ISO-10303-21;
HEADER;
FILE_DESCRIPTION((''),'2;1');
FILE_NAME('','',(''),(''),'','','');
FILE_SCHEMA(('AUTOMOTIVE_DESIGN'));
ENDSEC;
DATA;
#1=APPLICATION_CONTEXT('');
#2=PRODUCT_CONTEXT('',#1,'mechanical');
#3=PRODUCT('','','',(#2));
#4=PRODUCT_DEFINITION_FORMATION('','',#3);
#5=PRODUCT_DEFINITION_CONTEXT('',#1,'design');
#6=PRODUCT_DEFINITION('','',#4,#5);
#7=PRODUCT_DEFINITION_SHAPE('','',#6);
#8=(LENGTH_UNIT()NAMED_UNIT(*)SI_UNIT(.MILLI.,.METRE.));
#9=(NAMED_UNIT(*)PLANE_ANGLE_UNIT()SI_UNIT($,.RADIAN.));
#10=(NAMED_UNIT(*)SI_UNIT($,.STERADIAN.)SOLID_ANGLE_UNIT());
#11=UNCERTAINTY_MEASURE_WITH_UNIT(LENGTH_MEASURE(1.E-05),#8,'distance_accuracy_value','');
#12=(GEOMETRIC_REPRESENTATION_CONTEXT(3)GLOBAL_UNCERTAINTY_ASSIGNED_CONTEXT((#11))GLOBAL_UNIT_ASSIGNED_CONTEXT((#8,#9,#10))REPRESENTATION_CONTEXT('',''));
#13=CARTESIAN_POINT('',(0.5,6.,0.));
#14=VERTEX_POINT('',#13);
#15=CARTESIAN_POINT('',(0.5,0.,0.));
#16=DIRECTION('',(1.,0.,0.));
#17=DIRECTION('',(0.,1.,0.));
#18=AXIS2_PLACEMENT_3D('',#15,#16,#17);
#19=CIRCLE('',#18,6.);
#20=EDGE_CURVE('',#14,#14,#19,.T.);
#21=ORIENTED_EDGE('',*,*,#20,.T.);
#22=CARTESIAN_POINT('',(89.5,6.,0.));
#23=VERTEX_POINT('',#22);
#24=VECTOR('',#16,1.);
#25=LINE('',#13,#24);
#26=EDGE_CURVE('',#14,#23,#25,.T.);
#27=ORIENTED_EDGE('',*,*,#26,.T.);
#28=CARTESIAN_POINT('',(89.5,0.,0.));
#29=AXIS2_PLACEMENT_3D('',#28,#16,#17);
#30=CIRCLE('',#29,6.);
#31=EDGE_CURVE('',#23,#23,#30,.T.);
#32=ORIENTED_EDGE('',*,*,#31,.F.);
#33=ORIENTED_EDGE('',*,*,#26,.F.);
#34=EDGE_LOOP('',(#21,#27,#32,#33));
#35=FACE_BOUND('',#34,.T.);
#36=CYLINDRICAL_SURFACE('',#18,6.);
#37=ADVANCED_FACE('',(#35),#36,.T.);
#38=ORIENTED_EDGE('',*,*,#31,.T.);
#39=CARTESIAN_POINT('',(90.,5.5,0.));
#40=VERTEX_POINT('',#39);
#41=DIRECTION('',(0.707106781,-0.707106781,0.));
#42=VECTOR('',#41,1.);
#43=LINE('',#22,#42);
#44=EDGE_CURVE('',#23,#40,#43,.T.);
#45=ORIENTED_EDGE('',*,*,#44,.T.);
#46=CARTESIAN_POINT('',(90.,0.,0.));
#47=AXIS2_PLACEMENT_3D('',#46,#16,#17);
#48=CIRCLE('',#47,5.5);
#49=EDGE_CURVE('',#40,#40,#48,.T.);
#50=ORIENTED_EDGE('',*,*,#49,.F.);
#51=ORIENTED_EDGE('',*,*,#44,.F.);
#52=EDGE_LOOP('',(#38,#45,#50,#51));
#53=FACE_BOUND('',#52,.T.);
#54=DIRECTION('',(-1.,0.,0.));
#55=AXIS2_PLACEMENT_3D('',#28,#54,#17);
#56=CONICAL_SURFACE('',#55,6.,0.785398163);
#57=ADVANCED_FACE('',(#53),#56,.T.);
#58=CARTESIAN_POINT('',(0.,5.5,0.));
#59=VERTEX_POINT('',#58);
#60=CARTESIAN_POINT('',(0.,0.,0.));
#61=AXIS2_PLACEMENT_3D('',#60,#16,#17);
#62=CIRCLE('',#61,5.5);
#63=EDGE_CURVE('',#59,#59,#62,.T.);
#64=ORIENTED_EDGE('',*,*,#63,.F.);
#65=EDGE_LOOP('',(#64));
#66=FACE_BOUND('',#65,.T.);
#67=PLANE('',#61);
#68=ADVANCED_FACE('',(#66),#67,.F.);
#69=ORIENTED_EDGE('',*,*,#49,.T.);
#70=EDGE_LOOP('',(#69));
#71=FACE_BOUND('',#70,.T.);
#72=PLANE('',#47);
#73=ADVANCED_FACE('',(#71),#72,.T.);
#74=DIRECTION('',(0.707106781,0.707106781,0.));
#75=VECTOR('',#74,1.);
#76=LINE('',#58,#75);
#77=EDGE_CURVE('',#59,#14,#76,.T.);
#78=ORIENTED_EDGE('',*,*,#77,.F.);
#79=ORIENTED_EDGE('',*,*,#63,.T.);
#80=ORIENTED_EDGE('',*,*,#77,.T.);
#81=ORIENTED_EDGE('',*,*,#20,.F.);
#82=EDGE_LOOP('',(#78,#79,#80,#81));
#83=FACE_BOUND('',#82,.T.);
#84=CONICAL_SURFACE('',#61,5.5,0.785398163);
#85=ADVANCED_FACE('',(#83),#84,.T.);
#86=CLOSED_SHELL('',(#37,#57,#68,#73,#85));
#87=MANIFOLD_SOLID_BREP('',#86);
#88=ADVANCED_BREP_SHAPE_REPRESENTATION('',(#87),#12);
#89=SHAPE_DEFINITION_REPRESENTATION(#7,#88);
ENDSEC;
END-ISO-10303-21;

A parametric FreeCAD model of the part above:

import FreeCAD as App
import Part
import Sketcher
Q = App.Units.Quantity


def add_polygon(sketch, points):
    """Adds a closed chain of lines whose ends are joined by coincident constraints."""
    first, n = sketch.GeometryCount, len(points)
    for a, b in zip(points, points[1:] + points[:1]):
        sketch.addGeometry(Part.LineSegment(App.Vector(*a, 0), App.Vector(*b, 0)), False)
    for i in range(n):
        sketch.addConstraint(Sketcher.Constraint("Coincident", first + i, 2, first + (i + 1) % n, 1))

doc = App.newDocument("Part")
body = doc.addObject("PartDesign::Body", "Body")

# Sketch on XY plane
sketch1 = doc.addObject("Sketcher::SketchObject", "Sketch")
body.addObject(sketch1)
sketch1.AttachmentSupport = (doc.XY_Plane, [""])
sketch1.MapMode = "FlatFace"
add_polygon(sketch1, [(0, 0), (90, 0), (90, 5.5), (89.5, 6), (0.5, 6), (0, 5.5)])  # lines 0-5
sketch1.addConstraint([
    Sketcher.Constraint("Horizontal", 0),
    Sketcher.Constraint("Vertical", 1),
    Sketcher.Constraint("Horizontal", 3),
    Sketcher.Constraint("Vertical", 5),
    Sketcher.Constraint("Coincident", 5, 2, -1, 1),
    Sketcher.Constraint("Perpendicular", 2, 4),
    Sketcher.Constraint("Horizontal", 1, 2, 4, 2),
    Sketcher.Constraint("Equal", 2, 4),
    Sketcher.Constraint("DistanceX", 0, 1, 0, 2, Q("90 mm")),
    Sketcher.Constraint("DistanceX", 3, 2, 3, 1, Q("89 mm")),
    Sketcher.Constraint("DistanceY", 1, 1, 1, 2, Q("5.5 mm")),
])
revolution = doc.addObject("PartDesign::Revolution", "Revolution")
body.addObject(revolution)
revolution.Profile = sketch1
revolution.ReferenceAxis = (sketch1, ["H_Axis"])
revolution.Angle = 360

doc.recompute()
